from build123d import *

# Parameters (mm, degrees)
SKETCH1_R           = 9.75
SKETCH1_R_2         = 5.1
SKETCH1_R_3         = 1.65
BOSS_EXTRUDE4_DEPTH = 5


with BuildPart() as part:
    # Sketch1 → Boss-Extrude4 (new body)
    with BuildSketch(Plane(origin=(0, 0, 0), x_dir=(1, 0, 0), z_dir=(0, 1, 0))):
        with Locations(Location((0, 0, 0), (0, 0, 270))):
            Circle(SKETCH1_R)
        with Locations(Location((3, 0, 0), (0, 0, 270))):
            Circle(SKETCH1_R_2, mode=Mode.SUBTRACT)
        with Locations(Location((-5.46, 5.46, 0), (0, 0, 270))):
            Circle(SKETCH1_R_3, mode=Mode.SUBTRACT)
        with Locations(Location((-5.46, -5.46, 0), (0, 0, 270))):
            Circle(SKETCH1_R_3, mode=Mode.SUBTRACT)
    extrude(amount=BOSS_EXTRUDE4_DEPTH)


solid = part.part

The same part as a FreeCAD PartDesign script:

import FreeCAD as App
import Part
import Sketcher

V = App.Vector
Q = App.Units.Quantity

doc = App.newDocument("Part")
body = doc.addObject("PartDesign::Body", "Body")

sketch1 = body.newObject("Sketcher::SketchObject", "Sketch")
sketch1.AttachmentSupport = (doc.getObject("XZ_Plane"), [""])
sketch1.MapMode = "FlatFace"
sketch1.addGeometry([
    Part.Circle(V(0, 0, 0), V(0, 0, 1), 9.75),
    Part.Circle(V(-5.46, -5.46, 0), V(0, 0, 1), 1.65),
    Part.Circle(V(-5.46, 5.46, 0), V(0, 0, 1), 1.65),
    Part.Circle(V(3, 0, 0), V(0, 0, 1), 5.1),
], False)
sketch1.addConstraint([
    Sketcher.Constraint("Coincident", 0, 3, -1, 1),
    Sketcher.Constraint("Equal", 1, 2),
    Sketcher.Constraint("Symmetric", 1, 3, 2, 3, -1),
    Sketcher.Constraint("PointOnObject", 3, 3, -1),
    Sketcher.Constraint("Diameter", 0, Q("19.5 mm")),
    Sketcher.Constraint("Diameter", 1, Q("3.3 mm")),
    Sketcher.Constraint("Diameter", 3, Q("10.2 mm")),
    Sketcher.Constraint("DistanceX", -1, 1, 3, 3, Q("3 mm")),
    Sketcher.Constraint("DistanceX", 1, 3, -1, 1, Q("5.46 mm")),
    Sketcher.Constraint("DistanceY", 1, 3, -1, 1, Q("5.46 mm")),
])
pad1 = body.newObject("PartDesign::Pad", "Pad")
pad1.Profile = sketch1
pad1.Length = 5
pad1.Reversed = True

doc.recompute()
